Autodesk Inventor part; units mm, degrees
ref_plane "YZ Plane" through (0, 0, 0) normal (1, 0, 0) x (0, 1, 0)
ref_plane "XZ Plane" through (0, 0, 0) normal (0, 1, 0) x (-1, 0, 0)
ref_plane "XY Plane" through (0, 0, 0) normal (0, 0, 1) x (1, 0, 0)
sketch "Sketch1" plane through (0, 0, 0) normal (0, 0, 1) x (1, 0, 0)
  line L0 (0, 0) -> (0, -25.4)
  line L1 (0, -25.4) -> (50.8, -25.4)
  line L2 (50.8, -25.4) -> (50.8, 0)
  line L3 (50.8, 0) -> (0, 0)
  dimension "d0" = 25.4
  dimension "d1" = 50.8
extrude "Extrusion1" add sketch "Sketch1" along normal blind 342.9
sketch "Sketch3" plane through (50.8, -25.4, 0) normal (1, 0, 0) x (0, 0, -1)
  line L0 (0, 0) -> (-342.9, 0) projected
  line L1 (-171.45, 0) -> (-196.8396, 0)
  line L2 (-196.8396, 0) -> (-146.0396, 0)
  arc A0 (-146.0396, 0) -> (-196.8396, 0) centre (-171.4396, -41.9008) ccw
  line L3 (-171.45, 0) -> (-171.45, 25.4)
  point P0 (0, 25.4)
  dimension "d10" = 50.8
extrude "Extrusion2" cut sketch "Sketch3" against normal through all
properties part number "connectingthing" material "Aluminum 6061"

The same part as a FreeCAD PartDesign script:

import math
import FreeCAD as App
import Part
import Sketcher
Q = App.Units.Quantity


def add_polygon(sketch, points):
    """Adds a closed chain of lines whose ends are joined by coincident constraints."""
    first, n = sketch.GeometryCount, len(points)
    for a, b in zip(points, points[1:] + points[:1]):
        sketch.addGeometry(Part.LineSegment(App.Vector(*a, 0), App.Vector(*b, 0)), False)
    for i in range(n):
        sketch.addConstraint(Sketcher.Constraint("Coincident", first + i, 2, first + (i + 1) % n, 1))

doc = App.newDocument("Part")
body = doc.addObject("PartDesign::Body", "Body")

sketch1 = body.newObject("Sketcher::SketchObject", "Sketch")
sketch1.AttachmentSupport = (doc.getObject("XY_Plane"), [""])
sketch1.MapMode = "FlatFace"
add_polygon(sketch1, [(51, 0), (0, 0), (0, -25), (51, -25)])
sketch1.addConstraint([
    Sketcher.Constraint("Horizontal", 0),
    Sketcher.Constraint("Vertical", 1),
    Sketcher.Constraint("Horizontal", 2),
    Sketcher.Constraint("Vertical", 3),
    Sketcher.Constraint("Coincident", 0, 2, -1, 1),
    Sketcher.Constraint("DistanceX", 0, 2, 0, 1, Q("2 in")),
    Sketcher.Constraint("DistanceY", 1, 2, 1, 1, Q("1 in")),
])
pad1 = body.newObject("PartDesign::Pad", "Pad")
pad1.Profile = sketch1
pad1.Length = Q("13.5 in")

sketch2 = body.newObject("Sketcher::SketchObject", "Sketch001")
sketch2.AttachmentSupport = (doc.getObject("YZ_Plane"), [""])
sketch2.MapMode = "FlatFace"
sketch2.AttachmentOffset = App.Placement(App.Vector(0, 0, 2 * 25.4), App.Rotation())
sketch2.addGeometry([
    Part.ArcOfCircle(Part.Circle(App.Vector(-67, 171, 0), App.Vector(0, 0, 1), 49), math.radians(-31), math.radians(31)),
    Part.LineSegment(App.Vector(-25, 197, 0), App.Vector(-25, 146, 0)),
], False)
sketch2.addConstraint([
    Sketcher.Constraint("Coincident", 0, 1, 1, 2),
    Sketcher.Constraint("Coincident", 1, 1, 0, 2),
    Sketcher.Constraint("Vertical", 1),
    Sketcher.Constraint("DistanceY", 1, 2, 1, 1, Q("2 in")),
    Sketcher.Constraint("DistanceX", 0, 1, -1, 1, Q("1 in")),
    Sketcher.Constraint("Radius", 0, Q("48.9983 mm")),
    Sketcher.Constraint("DistanceY", -1, 1, 0, 3, Q("6.7496 in")),
])
pocket1 = body.newObject("PartDesign::Pocket", "Pocket")
pocket1.Profile = sketch2
pocket1.Type = "ThroughAll"

doc.recompute()
